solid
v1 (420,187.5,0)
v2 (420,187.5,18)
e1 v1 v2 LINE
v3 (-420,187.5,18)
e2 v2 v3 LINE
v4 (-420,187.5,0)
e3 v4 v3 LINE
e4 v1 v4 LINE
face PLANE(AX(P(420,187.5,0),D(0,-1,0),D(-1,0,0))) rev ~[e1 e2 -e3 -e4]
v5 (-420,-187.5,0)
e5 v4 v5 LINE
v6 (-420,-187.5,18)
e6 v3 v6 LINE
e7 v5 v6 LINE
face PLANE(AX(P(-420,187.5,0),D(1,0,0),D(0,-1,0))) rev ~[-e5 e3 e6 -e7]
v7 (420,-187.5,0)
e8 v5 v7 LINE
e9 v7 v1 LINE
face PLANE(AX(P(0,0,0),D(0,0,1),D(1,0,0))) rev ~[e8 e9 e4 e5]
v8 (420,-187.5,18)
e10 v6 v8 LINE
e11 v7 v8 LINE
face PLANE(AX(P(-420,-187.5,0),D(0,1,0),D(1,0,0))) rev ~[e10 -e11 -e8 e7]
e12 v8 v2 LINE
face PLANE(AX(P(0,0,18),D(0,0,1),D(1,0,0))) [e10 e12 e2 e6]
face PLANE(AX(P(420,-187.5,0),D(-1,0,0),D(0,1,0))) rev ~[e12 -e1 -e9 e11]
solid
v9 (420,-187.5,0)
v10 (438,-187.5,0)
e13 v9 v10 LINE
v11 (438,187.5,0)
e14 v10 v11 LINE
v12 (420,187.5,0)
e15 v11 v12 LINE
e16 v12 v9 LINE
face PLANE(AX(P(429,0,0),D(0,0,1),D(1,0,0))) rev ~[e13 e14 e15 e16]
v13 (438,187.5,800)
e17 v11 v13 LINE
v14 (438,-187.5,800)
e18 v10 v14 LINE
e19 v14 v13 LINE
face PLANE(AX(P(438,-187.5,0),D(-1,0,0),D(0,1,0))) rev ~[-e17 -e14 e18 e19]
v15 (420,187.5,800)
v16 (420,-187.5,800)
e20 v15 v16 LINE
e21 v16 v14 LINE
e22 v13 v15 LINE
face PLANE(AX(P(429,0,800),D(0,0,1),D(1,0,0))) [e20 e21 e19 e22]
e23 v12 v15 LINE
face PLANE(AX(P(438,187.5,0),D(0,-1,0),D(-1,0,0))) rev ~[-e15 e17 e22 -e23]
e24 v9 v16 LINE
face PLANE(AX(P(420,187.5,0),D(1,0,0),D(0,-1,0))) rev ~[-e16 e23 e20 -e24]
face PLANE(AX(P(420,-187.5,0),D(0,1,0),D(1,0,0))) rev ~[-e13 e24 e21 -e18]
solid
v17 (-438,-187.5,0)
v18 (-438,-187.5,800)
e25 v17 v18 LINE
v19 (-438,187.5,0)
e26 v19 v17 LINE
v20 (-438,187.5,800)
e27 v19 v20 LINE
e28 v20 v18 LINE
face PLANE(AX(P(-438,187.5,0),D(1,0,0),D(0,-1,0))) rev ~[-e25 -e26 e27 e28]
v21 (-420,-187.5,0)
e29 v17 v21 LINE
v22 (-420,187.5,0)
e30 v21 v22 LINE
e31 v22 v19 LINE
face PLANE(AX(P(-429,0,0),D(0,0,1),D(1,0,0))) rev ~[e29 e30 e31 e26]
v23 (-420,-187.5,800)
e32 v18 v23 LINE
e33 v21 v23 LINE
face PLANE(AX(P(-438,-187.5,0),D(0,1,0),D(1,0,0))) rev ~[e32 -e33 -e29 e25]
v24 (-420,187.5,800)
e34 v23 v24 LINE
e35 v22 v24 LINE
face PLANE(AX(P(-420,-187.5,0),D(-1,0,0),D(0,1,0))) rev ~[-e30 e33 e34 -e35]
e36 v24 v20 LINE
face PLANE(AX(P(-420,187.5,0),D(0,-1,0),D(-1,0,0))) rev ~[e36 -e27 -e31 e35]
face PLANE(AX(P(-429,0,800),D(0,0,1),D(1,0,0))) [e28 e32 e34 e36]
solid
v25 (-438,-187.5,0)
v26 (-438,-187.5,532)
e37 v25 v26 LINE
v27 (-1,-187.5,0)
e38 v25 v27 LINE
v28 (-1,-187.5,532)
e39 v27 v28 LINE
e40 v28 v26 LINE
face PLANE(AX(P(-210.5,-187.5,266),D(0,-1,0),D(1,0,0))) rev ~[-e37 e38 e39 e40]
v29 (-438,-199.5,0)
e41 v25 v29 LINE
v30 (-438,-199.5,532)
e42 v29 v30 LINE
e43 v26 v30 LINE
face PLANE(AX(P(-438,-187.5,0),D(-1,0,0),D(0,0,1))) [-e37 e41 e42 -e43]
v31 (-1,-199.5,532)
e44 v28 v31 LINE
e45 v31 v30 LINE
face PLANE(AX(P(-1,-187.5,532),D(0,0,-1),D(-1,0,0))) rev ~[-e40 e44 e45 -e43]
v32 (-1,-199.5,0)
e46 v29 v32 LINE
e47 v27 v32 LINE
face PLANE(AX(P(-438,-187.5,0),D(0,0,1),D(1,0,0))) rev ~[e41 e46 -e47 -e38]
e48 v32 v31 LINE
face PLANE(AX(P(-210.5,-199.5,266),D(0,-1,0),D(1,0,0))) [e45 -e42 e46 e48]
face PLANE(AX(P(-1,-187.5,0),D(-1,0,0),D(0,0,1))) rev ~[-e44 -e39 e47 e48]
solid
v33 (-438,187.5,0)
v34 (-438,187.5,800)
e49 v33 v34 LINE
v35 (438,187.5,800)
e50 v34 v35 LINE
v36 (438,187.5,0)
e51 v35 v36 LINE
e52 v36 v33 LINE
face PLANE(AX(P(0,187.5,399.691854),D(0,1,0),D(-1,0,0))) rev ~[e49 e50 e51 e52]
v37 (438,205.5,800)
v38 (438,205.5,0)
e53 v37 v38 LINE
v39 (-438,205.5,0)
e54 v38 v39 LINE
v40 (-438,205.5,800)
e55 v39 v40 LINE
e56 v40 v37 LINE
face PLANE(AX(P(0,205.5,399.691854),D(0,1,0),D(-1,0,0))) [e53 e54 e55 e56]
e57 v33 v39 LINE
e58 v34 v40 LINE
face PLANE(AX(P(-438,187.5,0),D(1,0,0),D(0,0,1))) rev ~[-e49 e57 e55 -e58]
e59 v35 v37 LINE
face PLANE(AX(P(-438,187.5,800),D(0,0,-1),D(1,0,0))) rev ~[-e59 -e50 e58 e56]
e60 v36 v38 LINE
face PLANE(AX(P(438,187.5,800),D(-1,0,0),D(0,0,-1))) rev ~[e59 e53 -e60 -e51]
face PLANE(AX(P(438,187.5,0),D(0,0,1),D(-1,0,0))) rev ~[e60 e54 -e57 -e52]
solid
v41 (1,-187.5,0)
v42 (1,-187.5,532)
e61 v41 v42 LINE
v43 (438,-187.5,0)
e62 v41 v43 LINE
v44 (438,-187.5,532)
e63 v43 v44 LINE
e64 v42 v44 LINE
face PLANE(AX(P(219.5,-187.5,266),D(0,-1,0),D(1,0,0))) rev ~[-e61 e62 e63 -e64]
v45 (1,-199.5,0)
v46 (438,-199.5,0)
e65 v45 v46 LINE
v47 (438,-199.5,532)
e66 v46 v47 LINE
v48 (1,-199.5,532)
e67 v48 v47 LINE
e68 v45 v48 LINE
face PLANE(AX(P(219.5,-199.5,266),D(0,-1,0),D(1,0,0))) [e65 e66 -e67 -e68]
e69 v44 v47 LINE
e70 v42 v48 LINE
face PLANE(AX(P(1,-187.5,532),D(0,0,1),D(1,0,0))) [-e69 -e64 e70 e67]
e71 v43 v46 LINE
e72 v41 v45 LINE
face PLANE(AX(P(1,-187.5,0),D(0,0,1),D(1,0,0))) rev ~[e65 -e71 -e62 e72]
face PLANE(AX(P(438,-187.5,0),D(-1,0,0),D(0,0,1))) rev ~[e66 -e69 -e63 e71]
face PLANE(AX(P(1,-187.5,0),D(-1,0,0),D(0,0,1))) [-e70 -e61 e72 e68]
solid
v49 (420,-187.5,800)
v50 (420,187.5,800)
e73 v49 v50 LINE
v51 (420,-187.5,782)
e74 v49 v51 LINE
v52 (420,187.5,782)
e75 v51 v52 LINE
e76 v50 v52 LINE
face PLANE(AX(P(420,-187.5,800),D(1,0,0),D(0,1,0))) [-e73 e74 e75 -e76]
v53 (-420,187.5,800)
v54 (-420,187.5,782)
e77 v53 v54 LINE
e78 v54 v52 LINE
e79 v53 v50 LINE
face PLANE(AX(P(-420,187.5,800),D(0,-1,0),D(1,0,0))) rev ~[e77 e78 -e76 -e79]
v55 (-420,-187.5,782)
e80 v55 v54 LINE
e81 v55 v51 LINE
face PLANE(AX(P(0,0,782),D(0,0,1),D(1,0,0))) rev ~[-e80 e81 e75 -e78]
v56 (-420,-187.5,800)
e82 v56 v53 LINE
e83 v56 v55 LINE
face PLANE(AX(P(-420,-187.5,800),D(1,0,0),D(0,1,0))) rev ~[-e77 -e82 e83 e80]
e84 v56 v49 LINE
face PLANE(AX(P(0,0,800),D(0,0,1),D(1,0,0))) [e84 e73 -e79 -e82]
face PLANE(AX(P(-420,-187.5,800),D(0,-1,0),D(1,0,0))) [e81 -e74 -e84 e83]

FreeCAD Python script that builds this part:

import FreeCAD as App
import Part
import Sketcher
Q = App.Units.Quantity


def add_polygon(sketch, points):
    """Adds a closed chain of lines whose ends are joined by coincident constraints."""
    first, n = sketch.GeometryCount, len(points)
    for a, b in zip(points, points[1:] + points[:1]):
        sketch.addGeometry(Part.LineSegment(App.Vector(*a, 0), App.Vector(*b, 0)), False)
    for i in range(n):
        sketch.addConstraint(Sketcher.Constraint("Coincident", first + i, 2, first + (i + 1) % n, 1))

doc = App.newDocument("Part")
body = doc.addObject("PartDesign::Body", "Body")

sketch1 = doc.addObject("Sketcher::SketchObject", "Sketch")
body.addObject(sketch1)
sketch1.AttachmentSupport = (doc.XY_Plane, [""])
sketch1.MapMode = "FlatFace"
add_polygon(sketch1, [(-438, -187.5), (-420, -187.5), (-420, 187.5), (-438, 187.5)])
sketch1.addConstraint(Sketcher.Constraint("Horizontal", 0))
sketch1.addConstraint(Sketcher.Constraint("Vertical", 1))
sketch1.addConstraint(Sketcher.Constraint("Horizontal", 2))
sketch1.addConstraint(Sketcher.Constraint("Vertical", 3))
sketch1.addConstraint(Sketcher.Constraint("DistanceX", 0, 1, 0, 2, Q("18 mm")))
sketch1.addConstraint(Sketcher.Constraint("DistanceY", 1, 1, 1, 2, Q("375 mm")))
sketch1.addConstraint(Sketcher.Constraint("DistanceX", 0, 2, -1, 1, Q("420 mm")))
sketch1.addConstraint(Sketcher.Constraint("DistanceY", 0, 2, -1, 1, Q("187.5 mm")))
pad1 = doc.addObject("PartDesign::Pad", "Pad")
body.addObject(pad1)
pad1.Profile = sketch1
pad1.Length = 800
body2 = doc.addObject("PartDesign::Body", "Body001")

sketch2 = doc.addObject("Sketcher::SketchObject", "Sketch001")
body2.addObject(sketch2)
sketch2.AttachmentSupport = (doc.getObject("XY_Plane001"), [""])
sketch2.MapMode = "FlatFace"
add_polygon(sketch2, [(420, -187.5), (438, -187.5), (438, 187.5), (420, 187.5)])
sketch2.addConstraint(Sketcher.Constraint("Horizontal", 0))
sketch2.addConstraint(Sketcher.Constraint("Vertical", 1))
sketch2.addConstraint(Sketcher.Constraint("Horizontal", 2))
sketch2.addConstraint(Sketcher.Constraint("Vertical", 3))
sketch2.addConstraint(Sketcher.Constraint("DistanceX", 0, 1, 0, 2, Q("18 mm")))
sketch2.addConstraint(Sketcher.Constraint("DistanceY", 1, 1, 1, 2, Q("375 mm")))
sketch2.addConstraint(Sketcher.Constraint("DistanceX", -1, 1, 0, 2, Q("438 mm")))
sketch2.addConstraint(Sketcher.Constraint("DistanceY", 0, 2, -1, 1, Q("187.5 mm")))
pad2 = doc.addObject("PartDesign::Pad", "Pad001")
body2.addObject(pad2)
pad2.Profile = sketch2
pad2.Length = 800
body3 = doc.addObject("PartDesign::Body", "Body002")

sketch3 = doc.addObject("Sketcher::SketchObject", "Sketch002")
body3.addObject(sketch3)
sketch3.AttachmentSupport = (doc.getObject("XY_Plane002"), [""])
sketch3.MapMode = "FlatFace"
sketch3.AttachmentOffset = App.Placement(App.Vector(0, 0, 800), App.Rotation())
add_polygon(sketch3, [(-420, 187.5), (-420, -187.5), (420, -187.5), (420, 187.5)])
sketch3.addConstraint(Sketcher.Constraint("Vertical", 0))
sketch3.addConstraint(Sketcher.Constraint("Horizontal", 1))
sketch3.addConstraint(Sketcher.Constraint("Vertical", 2))
sketch3.addConstraint(Sketcher.Constraint("Horizontal", 3))
sketch3.addConstraint(Sketcher.Constraint("Symmetric", 0, 2, 2, 2, -1, 1))
sketch3.addConstraint(Sketcher.Constraint("DistanceX", 1, 1, 1, 2, Q("840 mm")))
sketch3.addConstraint(Sketcher.Constraint("DistanceY", 0, 2, 0, 1, Q("375 mm")))
pad3 = doc.addObject("PartDesign::Pad", "Pad002")
body3.addObject(pad3)
pad3.Profile = sketch3
pad3.Length = 18
pad3.Reversed = True
body4 = doc.addObject("PartDesign::Body", "Body003")

sketch4 = doc.addObject("Sketcher::SketchObject", "Sketch003")
body4.addObject(sketch4)
sketch4.AttachmentSupport = (doc.getObject("XY_Plane003"), [""])
sketch4.MapMode = "FlatFace"
add_polygon(sketch4, [(-420, -187.5), (420, -187.5), (420, 187.5), (-420, 187.5)])
sketch4.addConstraint(Sketcher.Constraint("Horizontal", 0))
sketch4.addConstraint(Sketcher.Constraint("Vertical", 1))
sketch4.addConstraint(Sketcher.Constraint("Horizontal", 2))
sketch4.addConstraint(Sketcher.Constraint("Vertical", 3))
sketch4.addConstraint(Sketcher.Constraint("Symmetric", 0, 2, 2, 2, -1, 1))
sketch4.addConstraint(Sketcher.Constraint("DistanceX", 0, 1, 0, 2, Q("840 mm")))
sketch4.addConstraint(Sketcher.Constraint("DistanceY", 1, 1, 1, 2, Q("375 mm")))
pad4 = doc.addObject("PartDesign::Pad", "Pad003")
body4.addObject(pad4)
pad4.Profile = sketch4
pad4.Length = 18
body5 = doc.addObject("PartDesign::Body", "Body004")

sketch5 = doc.addObject("Sketcher::SketchObject", "Sketch004")
body5.addObject(sketch5)
sketch5.AttachmentSupport = (doc.getObject("XZ_Plane004"), [""])
sketch5.MapMode = "FlatFace"
sketch5.AttachmentOffset = App.Placement(App.Vector(0, 0, -187.5), App.Rotation())
add_polygon(sketch5, [(438, 800), (438, 0), (-438, 0), (-438, 800)])
sketch5.addConstraint(Sketcher.Constraint("Vertical", 0))
sketch5.addConstraint(Sketcher.Constraint("Horizontal", 1))
sketch5.addConstraint(Sketcher.Constraint("Vertical", 2))
sketch5.addConstraint(Sketcher.Constraint("Horizontal", 3))
sketch5.addConstraint(Sketcher.Constraint("Symmetric", 0, 2, 1, 2, -1, 1))
sketch5.addConstraint(Sketcher.Constraint("DistanceX", 1, 2, 1, 1, Q("876 mm")))
sketch5.addConstraint(Sketcher.Constraint("DistanceY", 0, 2, 0, 1, Q("800 mm")))
pad5 = doc.addObject("PartDesign::Pad", "Pad004")
body5.addObject(pad5)
pad5.Profile = sketch5
pad5.Length = 18
pad5.Reversed = True
body6 = doc.addObject("PartDesign::Body", "Body005")

sketch6 = doc.addObject("Sketcher::SketchObject", "Sketch005")
body6.addObject(sketch6)
sketch6.AttachmentSupport = (doc.getObject("XZ_Plane005"), [""])
sketch6.MapMode = "FlatFace"
sketch6.AttachmentOffset = App.Placement(App.Vector(0, 0, 187.5), App.Rotation())
add_polygon(sketch6, [(-1, 0), (-1, 532), (-438, 532), (-438, 0)])
sketch6.addConstraint(Sketcher.Constraint("Vertical", 0))
sketch6.addConstraint(Sketcher.Constraint("Horizontal", 1))
sketch6.addConstraint(Sketcher.Constraint("Vertical", 2))
sketch6.addConstraint(Sketcher.Constraint("Horizontal", 3))
sketch6.addConstraint(Sketcher.Constraint("PointOnObject", 2, 2, -1))
sketch6.addConstraint(Sketcher.Constraint("DistanceX", 1, 2, 1, 1, Q("437 mm")))
sketch6.addConstraint(Sketcher.Constraint("DistanceY", 0, 1, 0, 2, Q("532 mm")))
sketch6.addConstraint(Sketcher.Constraint("DistanceX", 0, 2, -1, 1, Q("1 mm")))
pad6 = doc.addObject("PartDesign::Pad", "Pad005")
body6.addObject(pad6)
pad6.Profile = sketch6
pad6.Length = 12
body7 = doc.addObject("PartDesign::Body", "Body006")

sketch7 = doc.addObject("Sketcher::SketchObject", "Sketch006")
body7.addObject(sketch7)
sketch7.AttachmentSupport = (doc.getObject("XZ_Plane006"), [""])
sketch7.MapMode = "FlatFace"
sketch7.AttachmentOffset = App.Placement(App.Vector(0, 0, 187.5), App.Rotation())
add_polygon(sketch7, [(1, 532), (1, 0), (438, 0), (438, 532)])
sketch7.addConstraint(Sketcher.Constraint("Vertical", 0))
sketch7.addConstraint(Sketcher.Constraint("Horizontal", 1))
sketch7.addConstraint(Sketcher.Constraint("Vertical", 2))
sketch7.addConstraint(Sketcher.Constraint("Horizontal", 3))
sketch7.addConstraint(Sketcher.Constraint("PointOnObject", 0, 2, -1))
sketch7.addConstraint(Sketcher.Constraint("DistanceX", 1, 1, 1, 2, Q("437 mm")))
sketch7.addConstraint(Sketcher.Constraint("DistanceY", 0, 2, 0, 1, Q("532 mm")))
sketch7.addConstraint(Sketcher.Constraint("DistanceX", -1, 1, 0, 2, Q("1 mm")))
pad7 = doc.addObject("PartDesign::Pad", "Pad006")
body7.addObject(pad7)
pad7.Profile = sketch7
pad7.Length = 12
body8 = doc.addObject("PartDesign::Body", "Body007")

sketch8 = doc.addObject("Sketcher::SketchObject", "Sketch007")
body8.addObject(sketch8)
sketch8.AttachmentSupport = (doc.getObject("YZ_Plane007"), [""])
sketch8.MapMode = "FlatFace"
sketch8.AttachmentOffset = App.Placement(App.Vector(0, 0, 438), App.Rotation())
add_polygon(sketch8, [(-187.5, 800), (-187.5, 0), (187.5, 0), (187.5, 800)])
sketch8.addConstraint(Sketcher.Constraint("Vertical", 0))
sketch8.addConstraint(Sketcher.Constraint("Horizontal", 1))
sketch8.addConstraint(Sketcher.Constraint("Vertical", 2))
sketch8.addConstraint(Sketcher.Constraint("Horizontal", 3))
sketch8.addConstraint(Sketcher.Constraint("Symmetric", 0, 2, 1, 2, -1, 1))
sketch8.addConstraint(Sketcher.Constraint("DistanceX", 1, 1, 1, 2, Q("375 mm")))
sketch8.addConstraint(Sketcher.Constraint("DistanceY", 0, 2, 0, 1, Q("800 mm")))
pad8 = doc.addObject("PartDesign::Pad", "Pad007")
body8.addObject(pad8)
pad8.Profile = sketch8
pad8.Length = 12
body8.Visibility = False

doc.recompute()
